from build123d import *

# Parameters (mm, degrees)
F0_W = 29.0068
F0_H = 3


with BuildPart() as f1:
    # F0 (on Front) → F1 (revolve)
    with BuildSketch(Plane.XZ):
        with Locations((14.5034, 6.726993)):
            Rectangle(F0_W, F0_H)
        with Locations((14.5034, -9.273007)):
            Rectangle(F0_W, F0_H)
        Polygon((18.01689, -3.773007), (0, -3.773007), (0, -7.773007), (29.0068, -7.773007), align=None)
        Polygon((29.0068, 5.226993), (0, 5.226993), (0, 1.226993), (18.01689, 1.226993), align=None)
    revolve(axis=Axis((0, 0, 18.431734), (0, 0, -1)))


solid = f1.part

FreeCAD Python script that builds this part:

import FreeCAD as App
import Part
import Sketcher

V = App.Vector
Q = App.Units.Quantity

doc = App.newDocument("Part")
params = doc.addObject("Spreadsheet::Sheet", "Params")
for row, (alias, value) in enumerate([
    ("sketch1_height", "7 mm"),
    ("sketch1_height2", "3 mm"),
    ("revolution_angle", "360 deg"),
], start=1):
    params.set(f"A{row}", alias)
    params.set(f"B{row}", "=" + value)
    params.setAlias(f"B{row}", alias)

body = doc.addObject("PartDesign::Body", "Body")
body.AllowCompound = True

# Sketch on XZ plane
sketch1 = doc.addObject("Sketcher::SketchObject", "Sketch")
body.addObject(sketch1)
sketch1.AttachmentSupport = (doc.XZ_Plane, [""])
sketch1.MapMode = "FlatFace"
sketch1.addGeometry([
    Part.LineSegment(V(0, 8.2, 0), V(0, 1.2, 0)),  # 0
    Part.LineSegment(V(0, 1.2, 0), V(18, 1.2, 0)),  # 1
    Part.LineSegment(V(18, 1.2, 0), V(29, 5.2, 0)),  # 2
    Part.LineSegment(V(29, 5.2, 0), V(29, 8.2, 0)),  # 3
    Part.LineSegment(V(29, 8.2, 0), V(0, 8.2, 0)),  # 4
    Part.LineSegment(V(0, -10.8, 0), V(29, -10.8, 0)),  # 5
    Part.LineSegment(V(29, -10.8, 0), V(29, -7.8, 0)),  # 6
    Part.LineSegment(V(29, -7.8, 0), V(18, -3.8, 0)),  # 7
    Part.LineSegment(V(18, -3.8, 0), V(0, -3.8, 0)),  # 8
    Part.LineSegment(V(0, -3.8, 0), V(0, -10.8, 0)),  # 9
], False)
sketch1.addConstraint([
    Sketcher.Constraint("Coincident", 0, 2, 1, 1),
    Sketcher.Constraint("Coincident", 1, 2, 2, 1),
    Sketcher.Constraint("Coincident", 2, 2, 3, 1),
    Sketcher.Constraint("Coincident", 3, 2, 4, 1),
    Sketcher.Constraint("Coincident", 4, 2, 0, 1),
    Sketcher.Constraint("Coincident", 5, 2, 6, 1),
    Sketcher.Constraint("Coincident", 6, 2, 7, 1),
    Sketcher.Constraint("Coincident", 7, 2, 8, 1),
    Sketcher.Constraint("Coincident", 8, 2, 9, 1),
    Sketcher.Constraint("Coincident", 9, 2, 5, 1),
    Sketcher.Constraint("Vertical", 0),
    Sketcher.Constraint("Horizontal", 1),
    Sketcher.Constraint("Vertical", 3),
    Sketcher.Constraint("Horizontal", 4),
    Sketcher.Constraint("Horizontal", 5),
    Sketcher.Constraint("Vertical", 6),
    Sketcher.Constraint("Horizontal", 8),
    Sketcher.Constraint("Vertical", 9),
    Sketcher.Constraint("PointOnObject", 0, 2, -2),
    Sketcher.Constraint("PointOnObject", 8, 2, -2),
    Sketcher.Constraint("Vertical", 3, 2, 5, 2),
    Sketcher.Constraint("Vertical", 1, 2, 7, 2),
    Sketcher.Constraint("Equal", 3, 6),
    Sketcher.Constraint("Equal", 0, 9),
    Sketcher.Constraint("DistanceY", 0, 2, 0, 1, 7.0),
    Sketcher.Constraint("DistanceY", 3, 1, 3, 2, 3.0),
    Sketcher.Constraint("Angle", 2, Q("19.999999 deg")),
    Sketcher.Constraint("DistanceY", 5, 2, 2, 2, 16.0),
    Sketcher.Constraint("DistanceX", 4, 2, 4, 1, 29.0068),
    Sketcher.Constraint("DistanceY", -1, 1, 0, 2, 1.226993),
])
sketch1.setExpression("Constraints[24]", "Params.sketch1_height")
sketch1.setExpression("Constraints[25]", "Params.sketch1_height2")
revolution = doc.addObject("PartDesign::Revolution", "Revolution")
body.addObject(revolution)
revolution.Profile = sketch1
revolution.ReferenceAxis = (sketch1, ["V_Axis"])
revolution.setExpression("Angle", "Params.revolution_angle")

doc.recompute()
